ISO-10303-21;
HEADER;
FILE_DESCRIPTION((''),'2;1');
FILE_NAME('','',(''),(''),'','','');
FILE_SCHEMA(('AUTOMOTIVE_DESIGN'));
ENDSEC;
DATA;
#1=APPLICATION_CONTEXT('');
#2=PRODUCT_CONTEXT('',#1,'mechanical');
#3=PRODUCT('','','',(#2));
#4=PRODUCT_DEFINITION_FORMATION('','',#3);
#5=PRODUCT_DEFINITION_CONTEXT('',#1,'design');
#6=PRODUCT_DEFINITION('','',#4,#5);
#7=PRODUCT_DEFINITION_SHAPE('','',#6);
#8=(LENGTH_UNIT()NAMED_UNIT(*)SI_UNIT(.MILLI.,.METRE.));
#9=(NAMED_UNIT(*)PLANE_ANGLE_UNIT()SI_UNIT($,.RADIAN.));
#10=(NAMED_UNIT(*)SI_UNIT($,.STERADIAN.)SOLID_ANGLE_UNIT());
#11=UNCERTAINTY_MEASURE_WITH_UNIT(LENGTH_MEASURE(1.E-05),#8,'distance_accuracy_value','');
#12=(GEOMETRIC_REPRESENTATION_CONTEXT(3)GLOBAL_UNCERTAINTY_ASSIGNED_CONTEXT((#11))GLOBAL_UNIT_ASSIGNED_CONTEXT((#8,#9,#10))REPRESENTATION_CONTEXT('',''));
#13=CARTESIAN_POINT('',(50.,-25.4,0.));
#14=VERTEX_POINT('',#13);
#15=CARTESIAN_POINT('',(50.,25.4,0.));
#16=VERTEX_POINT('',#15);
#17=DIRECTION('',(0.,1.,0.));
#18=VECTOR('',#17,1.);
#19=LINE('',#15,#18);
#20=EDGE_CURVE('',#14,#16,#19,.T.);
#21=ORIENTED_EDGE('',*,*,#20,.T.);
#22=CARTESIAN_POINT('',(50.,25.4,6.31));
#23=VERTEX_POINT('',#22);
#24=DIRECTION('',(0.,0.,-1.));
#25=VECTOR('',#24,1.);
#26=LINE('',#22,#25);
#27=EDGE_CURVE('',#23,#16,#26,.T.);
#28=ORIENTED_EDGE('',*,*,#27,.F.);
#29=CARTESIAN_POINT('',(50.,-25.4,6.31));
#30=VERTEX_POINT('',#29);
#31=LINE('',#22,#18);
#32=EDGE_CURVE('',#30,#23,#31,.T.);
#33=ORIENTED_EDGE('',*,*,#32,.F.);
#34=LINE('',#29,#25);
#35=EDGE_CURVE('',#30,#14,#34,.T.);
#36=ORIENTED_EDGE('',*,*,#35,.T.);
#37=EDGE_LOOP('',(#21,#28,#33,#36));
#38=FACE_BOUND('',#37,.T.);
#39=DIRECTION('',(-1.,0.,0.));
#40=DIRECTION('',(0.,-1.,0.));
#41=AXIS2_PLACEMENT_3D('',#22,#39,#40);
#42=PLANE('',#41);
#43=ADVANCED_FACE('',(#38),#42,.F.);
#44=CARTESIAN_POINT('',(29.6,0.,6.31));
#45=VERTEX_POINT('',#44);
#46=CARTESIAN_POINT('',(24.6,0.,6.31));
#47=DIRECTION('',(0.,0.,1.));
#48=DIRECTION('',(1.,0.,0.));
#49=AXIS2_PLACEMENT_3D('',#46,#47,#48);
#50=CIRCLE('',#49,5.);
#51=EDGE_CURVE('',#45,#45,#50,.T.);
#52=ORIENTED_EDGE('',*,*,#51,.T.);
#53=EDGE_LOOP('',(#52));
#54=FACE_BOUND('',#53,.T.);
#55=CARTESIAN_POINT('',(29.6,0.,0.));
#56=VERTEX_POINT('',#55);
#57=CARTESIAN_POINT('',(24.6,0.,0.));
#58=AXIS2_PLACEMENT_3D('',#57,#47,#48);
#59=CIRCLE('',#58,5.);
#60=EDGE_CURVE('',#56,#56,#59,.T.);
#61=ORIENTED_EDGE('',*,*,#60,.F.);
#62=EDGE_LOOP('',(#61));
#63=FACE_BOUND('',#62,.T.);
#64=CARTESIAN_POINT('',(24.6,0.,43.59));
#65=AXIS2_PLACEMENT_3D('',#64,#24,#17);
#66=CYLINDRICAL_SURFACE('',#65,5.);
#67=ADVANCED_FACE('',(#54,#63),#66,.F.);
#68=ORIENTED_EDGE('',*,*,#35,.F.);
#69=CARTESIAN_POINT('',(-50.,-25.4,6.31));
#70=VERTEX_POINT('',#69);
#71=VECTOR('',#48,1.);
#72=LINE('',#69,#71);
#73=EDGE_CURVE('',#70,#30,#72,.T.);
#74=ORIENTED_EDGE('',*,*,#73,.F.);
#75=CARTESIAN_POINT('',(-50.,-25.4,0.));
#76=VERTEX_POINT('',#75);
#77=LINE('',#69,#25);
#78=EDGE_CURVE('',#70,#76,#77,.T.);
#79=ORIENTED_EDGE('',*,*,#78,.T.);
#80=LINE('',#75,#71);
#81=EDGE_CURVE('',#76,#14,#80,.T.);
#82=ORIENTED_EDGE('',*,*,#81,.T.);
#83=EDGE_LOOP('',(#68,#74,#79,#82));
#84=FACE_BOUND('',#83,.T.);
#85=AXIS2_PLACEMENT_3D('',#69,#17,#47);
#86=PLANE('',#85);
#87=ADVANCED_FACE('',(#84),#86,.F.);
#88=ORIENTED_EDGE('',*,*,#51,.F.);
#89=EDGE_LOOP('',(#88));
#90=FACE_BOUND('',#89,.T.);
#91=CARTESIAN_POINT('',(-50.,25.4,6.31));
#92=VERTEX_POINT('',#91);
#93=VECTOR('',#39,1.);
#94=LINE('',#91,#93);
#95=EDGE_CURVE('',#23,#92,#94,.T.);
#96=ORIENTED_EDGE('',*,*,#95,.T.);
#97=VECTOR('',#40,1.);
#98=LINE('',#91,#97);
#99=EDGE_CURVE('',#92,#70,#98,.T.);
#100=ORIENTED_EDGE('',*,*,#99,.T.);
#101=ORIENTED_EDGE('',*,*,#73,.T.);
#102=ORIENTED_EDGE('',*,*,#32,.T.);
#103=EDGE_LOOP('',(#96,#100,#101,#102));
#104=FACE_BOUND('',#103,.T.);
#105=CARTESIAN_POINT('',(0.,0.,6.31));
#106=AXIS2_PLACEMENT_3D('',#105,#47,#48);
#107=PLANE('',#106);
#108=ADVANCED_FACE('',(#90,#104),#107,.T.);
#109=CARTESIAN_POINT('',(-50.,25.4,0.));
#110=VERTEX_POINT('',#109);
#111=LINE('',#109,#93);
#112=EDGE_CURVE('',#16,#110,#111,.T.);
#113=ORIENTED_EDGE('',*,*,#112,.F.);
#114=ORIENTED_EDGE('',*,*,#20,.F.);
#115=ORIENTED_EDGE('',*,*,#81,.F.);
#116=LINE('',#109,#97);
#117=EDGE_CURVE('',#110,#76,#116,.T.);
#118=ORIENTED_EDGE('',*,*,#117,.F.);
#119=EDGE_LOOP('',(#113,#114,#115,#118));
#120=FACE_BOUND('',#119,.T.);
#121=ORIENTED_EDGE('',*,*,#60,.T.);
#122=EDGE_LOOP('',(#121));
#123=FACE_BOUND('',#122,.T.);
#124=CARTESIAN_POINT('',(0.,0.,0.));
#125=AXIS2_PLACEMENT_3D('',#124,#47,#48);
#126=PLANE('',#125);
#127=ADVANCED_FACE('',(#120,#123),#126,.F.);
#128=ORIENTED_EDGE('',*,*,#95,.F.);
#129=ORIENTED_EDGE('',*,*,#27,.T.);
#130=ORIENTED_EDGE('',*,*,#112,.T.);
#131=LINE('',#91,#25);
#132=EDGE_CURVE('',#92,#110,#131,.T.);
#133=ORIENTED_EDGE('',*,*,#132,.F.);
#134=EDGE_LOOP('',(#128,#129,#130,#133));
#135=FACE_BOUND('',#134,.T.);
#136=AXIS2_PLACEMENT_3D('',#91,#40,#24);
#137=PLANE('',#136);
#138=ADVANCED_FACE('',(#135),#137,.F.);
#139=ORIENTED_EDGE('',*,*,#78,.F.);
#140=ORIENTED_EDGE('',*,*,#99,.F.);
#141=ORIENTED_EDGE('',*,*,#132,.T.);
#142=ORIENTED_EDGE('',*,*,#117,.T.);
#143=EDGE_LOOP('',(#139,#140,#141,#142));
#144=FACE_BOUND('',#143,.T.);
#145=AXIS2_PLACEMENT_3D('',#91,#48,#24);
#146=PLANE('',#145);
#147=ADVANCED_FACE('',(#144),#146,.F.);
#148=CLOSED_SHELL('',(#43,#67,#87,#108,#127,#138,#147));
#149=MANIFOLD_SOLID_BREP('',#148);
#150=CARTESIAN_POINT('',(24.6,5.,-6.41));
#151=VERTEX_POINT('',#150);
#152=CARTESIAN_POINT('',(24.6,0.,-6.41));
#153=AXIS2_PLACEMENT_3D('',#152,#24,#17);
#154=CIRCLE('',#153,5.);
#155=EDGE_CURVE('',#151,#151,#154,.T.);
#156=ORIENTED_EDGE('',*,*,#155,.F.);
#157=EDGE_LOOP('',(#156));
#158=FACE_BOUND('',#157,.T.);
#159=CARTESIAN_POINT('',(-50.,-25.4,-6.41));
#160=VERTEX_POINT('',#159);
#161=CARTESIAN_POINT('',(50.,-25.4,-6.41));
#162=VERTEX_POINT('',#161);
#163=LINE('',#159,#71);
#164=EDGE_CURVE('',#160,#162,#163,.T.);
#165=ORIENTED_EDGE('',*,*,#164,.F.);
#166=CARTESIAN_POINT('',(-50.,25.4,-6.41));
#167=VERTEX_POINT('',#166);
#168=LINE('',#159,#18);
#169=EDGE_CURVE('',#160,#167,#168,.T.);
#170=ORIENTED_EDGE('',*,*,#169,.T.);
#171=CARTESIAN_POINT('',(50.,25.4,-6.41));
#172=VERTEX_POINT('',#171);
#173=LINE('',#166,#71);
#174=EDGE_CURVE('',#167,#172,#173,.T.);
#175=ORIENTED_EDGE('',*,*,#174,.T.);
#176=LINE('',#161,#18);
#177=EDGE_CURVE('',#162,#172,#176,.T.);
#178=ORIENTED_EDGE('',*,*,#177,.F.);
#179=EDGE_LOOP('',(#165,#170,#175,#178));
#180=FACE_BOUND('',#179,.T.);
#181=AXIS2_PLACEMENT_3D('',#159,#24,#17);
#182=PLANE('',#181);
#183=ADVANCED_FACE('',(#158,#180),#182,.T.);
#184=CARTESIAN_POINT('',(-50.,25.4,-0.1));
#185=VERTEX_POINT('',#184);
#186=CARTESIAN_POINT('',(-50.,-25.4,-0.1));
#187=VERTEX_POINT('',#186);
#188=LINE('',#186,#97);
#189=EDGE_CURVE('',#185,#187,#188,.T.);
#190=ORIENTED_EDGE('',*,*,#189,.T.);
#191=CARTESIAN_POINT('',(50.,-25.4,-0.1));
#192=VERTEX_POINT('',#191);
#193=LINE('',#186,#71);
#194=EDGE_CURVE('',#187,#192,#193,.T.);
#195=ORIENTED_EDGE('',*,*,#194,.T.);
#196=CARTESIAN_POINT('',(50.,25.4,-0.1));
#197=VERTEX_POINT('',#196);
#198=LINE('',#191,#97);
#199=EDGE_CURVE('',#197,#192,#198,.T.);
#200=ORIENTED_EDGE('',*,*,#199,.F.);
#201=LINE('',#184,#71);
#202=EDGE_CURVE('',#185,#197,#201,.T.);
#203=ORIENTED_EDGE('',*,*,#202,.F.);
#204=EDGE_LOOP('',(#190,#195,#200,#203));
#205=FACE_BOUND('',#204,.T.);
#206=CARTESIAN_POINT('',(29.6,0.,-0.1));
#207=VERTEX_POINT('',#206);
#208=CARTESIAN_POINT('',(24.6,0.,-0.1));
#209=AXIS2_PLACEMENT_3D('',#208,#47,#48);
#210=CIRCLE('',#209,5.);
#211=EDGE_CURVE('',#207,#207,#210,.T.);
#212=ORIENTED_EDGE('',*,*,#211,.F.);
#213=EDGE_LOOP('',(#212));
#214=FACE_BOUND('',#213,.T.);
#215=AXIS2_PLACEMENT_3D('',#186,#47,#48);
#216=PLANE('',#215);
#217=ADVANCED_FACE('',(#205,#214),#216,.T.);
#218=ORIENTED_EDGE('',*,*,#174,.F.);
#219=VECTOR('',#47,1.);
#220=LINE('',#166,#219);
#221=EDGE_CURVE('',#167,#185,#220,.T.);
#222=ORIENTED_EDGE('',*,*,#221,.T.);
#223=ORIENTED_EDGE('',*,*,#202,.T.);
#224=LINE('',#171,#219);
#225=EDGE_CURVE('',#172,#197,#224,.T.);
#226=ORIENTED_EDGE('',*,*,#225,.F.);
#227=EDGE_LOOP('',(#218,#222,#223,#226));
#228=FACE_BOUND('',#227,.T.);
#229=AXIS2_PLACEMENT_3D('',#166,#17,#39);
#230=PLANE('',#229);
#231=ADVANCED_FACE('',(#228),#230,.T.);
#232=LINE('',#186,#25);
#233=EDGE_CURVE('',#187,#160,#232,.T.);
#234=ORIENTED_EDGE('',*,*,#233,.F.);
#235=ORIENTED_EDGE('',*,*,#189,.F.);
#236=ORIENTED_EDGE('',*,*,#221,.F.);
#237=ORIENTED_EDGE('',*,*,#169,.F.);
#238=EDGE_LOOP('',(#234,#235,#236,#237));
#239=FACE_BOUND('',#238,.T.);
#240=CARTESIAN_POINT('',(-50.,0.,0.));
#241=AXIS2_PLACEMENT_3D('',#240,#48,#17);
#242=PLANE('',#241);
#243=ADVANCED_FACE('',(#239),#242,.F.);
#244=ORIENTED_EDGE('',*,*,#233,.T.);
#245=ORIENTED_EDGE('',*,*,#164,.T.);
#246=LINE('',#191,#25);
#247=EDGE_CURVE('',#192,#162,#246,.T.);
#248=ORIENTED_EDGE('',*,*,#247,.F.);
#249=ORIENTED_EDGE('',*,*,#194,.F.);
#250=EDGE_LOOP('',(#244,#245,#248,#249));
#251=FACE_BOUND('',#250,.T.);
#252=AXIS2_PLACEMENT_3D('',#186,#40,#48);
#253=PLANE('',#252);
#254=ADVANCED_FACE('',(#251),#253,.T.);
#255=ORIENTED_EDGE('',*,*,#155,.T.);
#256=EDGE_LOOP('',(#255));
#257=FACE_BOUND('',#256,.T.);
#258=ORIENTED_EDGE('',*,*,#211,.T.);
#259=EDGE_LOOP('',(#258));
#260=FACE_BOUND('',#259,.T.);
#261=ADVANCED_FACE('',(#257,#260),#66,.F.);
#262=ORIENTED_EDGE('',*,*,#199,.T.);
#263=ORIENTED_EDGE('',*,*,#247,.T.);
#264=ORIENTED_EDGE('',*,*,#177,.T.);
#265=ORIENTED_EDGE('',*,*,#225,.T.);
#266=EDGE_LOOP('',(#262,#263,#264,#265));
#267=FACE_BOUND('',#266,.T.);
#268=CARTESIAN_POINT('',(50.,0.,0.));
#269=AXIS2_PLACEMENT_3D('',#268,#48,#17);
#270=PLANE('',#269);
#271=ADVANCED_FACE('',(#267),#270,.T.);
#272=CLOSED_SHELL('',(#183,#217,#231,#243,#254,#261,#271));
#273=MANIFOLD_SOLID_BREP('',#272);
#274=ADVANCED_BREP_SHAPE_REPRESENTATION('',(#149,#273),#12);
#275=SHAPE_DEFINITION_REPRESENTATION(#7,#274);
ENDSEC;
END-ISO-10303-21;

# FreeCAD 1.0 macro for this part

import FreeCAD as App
import Part
import Sketcher

V = App.Vector

doc = App.newDocument("Part")
body = doc.addObject("PartDesign::Body", "Body")

sketch1 = doc.addObject("Sketcher::SketchObject", "Sketch")
body.addObject(sketch1)
sketch1.AttachmentSupport = (doc.XY_Plane, [""])
sketch1.MapMode = "FlatFace"
sketch1.addGeometry(Part.LineSegment(V(-50, 25.4, 0), V(-50, -25.4, 0)), False)
sketch1.addGeometry(Part.LineSegment(V(-50, -25.4, 0), V(50, -25.4, 0)), False)
sketch1.addGeometry(Part.LineSegment(V(50, -25.4, 0), V(50, 25.4, 0)), False)
sketch1.addGeometry(Part.LineSegment(V(50, 25.4, 0), V(-50, 25.4, 0)), False)
sketch1.addConstraint(Sketcher.Constraint("Coincident", 0, 2, 1, 1))
sketch1.addConstraint(Sketcher.Constraint("Coincident", 1, 2, 2, 1))
sketch1.addConstraint(Sketcher.Constraint("Coincident", 2, 2, 3, 1))
sketch1.addConstraint(Sketcher.Constraint("Coincident", 3, 2, 0, 1))
sketch1.addConstraint(Sketcher.Constraint("Vertical", 0))
sketch1.addConstraint(Sketcher.Constraint("Horizontal", 1))
sketch1.addConstraint(Sketcher.Constraint("Vertical", 2))
sketch1.addConstraint(Sketcher.Constraint("Horizontal", 3))
sketch1.addConstraint(Sketcher.Constraint("Symmetric", 0, 2, 2, 2, -1, 1))
sketch1.addConstraint(Sketcher.Constraint("DistanceX", 1, 1, 1, 2, 100.0))
sketch1.addConstraint(Sketcher.Constraint("DistanceY", 0, 2, 0, 1, 50.8))
pad1 = doc.addObject("PartDesign::Pad", "Pad")
body.addObject(pad1)
pad1.Profile = sketch1
pad1.Length = 6.31
body2 = doc.addObject("PartDesign::Body", "Body001")

sketch2 = doc.addObject("Sketcher::SketchObject", "Sketch001")
body2.addObject(sketch2)
sketch2.AttachmentSupport = (doc.getObject("YZ_Plane001"), [""])
sketch2.MapMode = "FlatFace"
sketch2.AttachmentOffset = App.Placement(V(0, 0, 50), App.Rotation())
sketch2.addGeometry(Part.LineSegment(V(25.4, -0.1, 0), V(-25.4, -0.1, 0)), False)
sketch2.addGeometry(Part.LineSegment(V(-25.4, -0.1, 0), V(-25.4, -6.41, 0)), False)
sketch2.addGeometry(Part.LineSegment(V(-25.4, -6.41, 0), V(25.4, -6.41, 0)), False)
sketch2.addGeometry(Part.LineSegment(V(25.4, -6.41, 0), V(25.4, -0.1, 0)), False)
sketch2.addConstraint(Sketcher.Constraint("Coincident", 0, 2, 1, 1))
sketch2.addConstraint(Sketcher.Constraint("Coincident", 1, 2, 2, 1))
sketch2.addConstraint(Sketcher.Constraint("Coincident", 2, 2, 3, 1))
sketch2.addConstraint(Sketcher.Constraint("Coincident", 3, 2, 0, 1))
sketch2.addConstraint(Sketcher.Constraint("Horizontal", 0))
sketch2.addConstraint(Sketcher.Constraint("Vertical", 1))
sketch2.addConstraint(Sketcher.Constraint("Horizontal", 2))
sketch2.addConstraint(Sketcher.Constraint("Vertical", 3))
sketch2.addConstraint(Sketcher.Constraint("DistanceX", 0, 2, 0, 1, 50.8))
sketch2.addConstraint(Sketcher.Constraint("DistanceY", 1, 2, 1, 1, 6.31))
sketch2.addConstraint(Sketcher.Constraint("DistanceX", 0, 2, -1, 1, 25.4))
sketch2.addConstraint(Sketcher.Constraint("DistanceY", 0, 2, -1, 1, 0.1))
pad2 = doc.addObject("PartDesign::Pad", "Pad001")
body2.addObject(pad2)
pad2.Profile = sketch2
pad2.Length = 100
pad2.Reversed = True
body3 = doc.addObject("PartDesign::Body", "Body002")

sketch3 = doc.addObject("Sketcher::SketchObject", "Sketch002")
body3.addObject(sketch3)
sketch3.AttachmentSupport = (doc.getObject("XY_Plane002"), [""])
sketch3.MapMode = "FlatFace"
sketch3.AttachmentOffset = App.Placement(V(0, 0, -6.41), App.Rotation())
sketch3.addGeometry(Part.Circle(V(24.6, 0, 0), V(0, 0, 1), 5), False)
sketch3.addConstraint(Sketcher.Constraint("PointOnObject", 0, 3, -1))
sketch3.addConstraint(Sketcher.Constraint("Diameter", 0, 10.0))
sketch3.addConstraint(Sketcher.Constraint("DistanceX", -1, 1, 0, 3, 24.6))
pad3 = doc.addObject("PartDesign::Pad", "Pad002")
body3.addObject(pad3)
pad3.Profile = sketch3
pad3.Length = 50
doc.recompute()

body4 = doc.addObject("PartDesign::Body", "Body003")
body4.BaseFeature = body3
boolean = doc.addObject("PartDesign::Boolean", "Boolean")
body.addObject(boolean)
boolean.Type = "Cut"
boolean.addObjects([body4])
doc.recompute()

boolean2 = doc.addObject("PartDesign::Boolean", "Boolean001")
body2.addObject(boolean2)
boolean2.Type = "Cut"
boolean2.addObjects([body3])

doc.recompute()
